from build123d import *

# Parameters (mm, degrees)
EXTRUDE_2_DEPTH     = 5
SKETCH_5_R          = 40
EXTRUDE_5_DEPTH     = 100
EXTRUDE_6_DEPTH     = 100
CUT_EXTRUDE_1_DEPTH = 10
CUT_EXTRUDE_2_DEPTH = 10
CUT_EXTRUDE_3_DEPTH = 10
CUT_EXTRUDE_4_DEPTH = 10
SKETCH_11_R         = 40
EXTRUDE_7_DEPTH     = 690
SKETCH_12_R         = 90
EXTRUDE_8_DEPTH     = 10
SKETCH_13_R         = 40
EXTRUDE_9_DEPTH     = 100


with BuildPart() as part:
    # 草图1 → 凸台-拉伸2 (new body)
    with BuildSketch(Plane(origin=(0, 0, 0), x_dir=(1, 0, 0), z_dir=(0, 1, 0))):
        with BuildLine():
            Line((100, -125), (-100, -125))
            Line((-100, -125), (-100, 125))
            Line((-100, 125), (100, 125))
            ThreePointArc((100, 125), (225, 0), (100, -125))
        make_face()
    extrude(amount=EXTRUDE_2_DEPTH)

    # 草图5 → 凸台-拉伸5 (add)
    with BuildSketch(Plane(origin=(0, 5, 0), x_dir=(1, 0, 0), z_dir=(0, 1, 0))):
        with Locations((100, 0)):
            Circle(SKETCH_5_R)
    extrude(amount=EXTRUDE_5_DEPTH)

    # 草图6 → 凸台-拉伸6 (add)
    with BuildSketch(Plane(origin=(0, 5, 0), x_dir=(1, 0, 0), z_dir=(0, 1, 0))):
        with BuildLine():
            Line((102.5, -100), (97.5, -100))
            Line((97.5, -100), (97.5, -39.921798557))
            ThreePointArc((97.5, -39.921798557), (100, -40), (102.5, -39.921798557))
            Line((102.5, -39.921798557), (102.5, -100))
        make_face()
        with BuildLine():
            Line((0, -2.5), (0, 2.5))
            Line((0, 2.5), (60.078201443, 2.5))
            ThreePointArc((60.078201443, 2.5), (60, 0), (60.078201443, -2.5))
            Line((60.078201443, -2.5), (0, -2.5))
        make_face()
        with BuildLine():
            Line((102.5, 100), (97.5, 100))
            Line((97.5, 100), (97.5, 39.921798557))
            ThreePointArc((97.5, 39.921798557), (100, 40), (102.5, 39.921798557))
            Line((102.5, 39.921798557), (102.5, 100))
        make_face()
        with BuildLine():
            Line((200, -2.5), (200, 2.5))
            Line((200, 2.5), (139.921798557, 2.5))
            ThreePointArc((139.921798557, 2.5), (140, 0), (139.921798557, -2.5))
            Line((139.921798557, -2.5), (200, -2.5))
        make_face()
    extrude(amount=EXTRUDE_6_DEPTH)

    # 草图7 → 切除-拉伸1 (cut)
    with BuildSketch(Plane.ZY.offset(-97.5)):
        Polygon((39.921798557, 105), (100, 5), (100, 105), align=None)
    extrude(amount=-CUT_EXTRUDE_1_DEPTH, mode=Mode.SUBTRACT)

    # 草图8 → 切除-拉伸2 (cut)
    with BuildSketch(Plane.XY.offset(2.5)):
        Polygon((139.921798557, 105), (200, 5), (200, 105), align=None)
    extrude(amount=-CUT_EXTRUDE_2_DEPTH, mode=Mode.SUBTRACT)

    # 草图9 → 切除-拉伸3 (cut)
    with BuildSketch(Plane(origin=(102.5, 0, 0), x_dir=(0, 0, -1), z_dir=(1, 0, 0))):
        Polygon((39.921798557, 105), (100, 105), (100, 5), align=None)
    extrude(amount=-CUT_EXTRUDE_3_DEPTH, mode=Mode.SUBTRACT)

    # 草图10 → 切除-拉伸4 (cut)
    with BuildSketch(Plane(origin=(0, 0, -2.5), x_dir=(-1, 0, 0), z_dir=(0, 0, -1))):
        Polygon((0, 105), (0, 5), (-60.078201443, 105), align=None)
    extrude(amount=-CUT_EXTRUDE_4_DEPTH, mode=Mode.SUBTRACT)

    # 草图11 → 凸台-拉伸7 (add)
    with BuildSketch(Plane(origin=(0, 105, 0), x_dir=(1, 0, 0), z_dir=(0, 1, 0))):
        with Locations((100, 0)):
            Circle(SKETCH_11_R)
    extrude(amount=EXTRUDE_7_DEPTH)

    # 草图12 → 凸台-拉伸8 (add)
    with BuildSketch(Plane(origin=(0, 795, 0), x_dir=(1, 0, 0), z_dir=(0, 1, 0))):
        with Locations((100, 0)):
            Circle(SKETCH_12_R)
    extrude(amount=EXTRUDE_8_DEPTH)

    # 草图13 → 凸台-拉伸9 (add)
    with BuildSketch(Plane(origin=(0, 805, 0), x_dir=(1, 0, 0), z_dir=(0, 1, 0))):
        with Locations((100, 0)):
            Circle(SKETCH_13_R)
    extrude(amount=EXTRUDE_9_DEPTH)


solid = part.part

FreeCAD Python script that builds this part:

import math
import FreeCAD as App
import Part
import Sketcher
Q = App.Units.Quantity

doc = App.newDocument("Part")
params = doc.addObject("Spreadsheet::Sheet", "Params")
for row, (alias, value) in enumerate([
    ("sketch1_radius", "125 mm"),
    ("sketch1_width", "200 mm"),
    ("pad1_length", "5 mm"),
    ("sketch2_diameter", "80 mm"),
    ("pad2_length", "100 mm"),
    ("sketch3_radius", "40 mm"),
    ("sketch3_width", "5 mm"),
    ("pad3_length", "100 mm"),
    ("sketch4_width", "100 mm"),
    ("pocket1_length", "10 mm"),
    ("sketch5_height", "100 mm"),
    ("pocket2_length", "10 mm"),
    ("sketch6_width", "100 mm"),
    ("pocket3_length", "10 mm"),
    ("sketch7_height", "100 mm"),
    ("pocket4_length", "10 mm"),
    ("sketch8_diameter", "80 mm"),
    ("pad4_length", "690 mm"),
    ("sketch9_diameter", "180 mm"),
    ("pad5_length", "10 mm"),
    ("sketch10_diameter", "80 mm"),
    ("pad6_length", "100 mm"),
], start=1):
    params.set(f"A{row}", alias)
    params.set(f"B{row}", "=" + value)
    params.setAlias(f"B{row}", alias)

body = doc.addObject("PartDesign::Body", "Body")

sketch1 = body.newObject("Sketcher::SketchObject", "Sketch")
sketch1.AttachmentSupport = (doc.getObject("XZ_Plane"), [""])
sketch1.MapMode = "FlatFace"
sketch1.addGeometry([
    Part.LineSegment(App.Vector(-100, 125, 0), App.Vector(100, 125, 0)),
    Part.ArcOfCircle(Part.Circle(App.Vector(100, 0, 0), App.Vector(0, 0, 1), 125), math.radians(-90), math.radians(90)),
    Part.LineSegment(App.Vector(100, -125, 0), App.Vector(-100, -125, 0)),
    Part.LineSegment(App.Vector(-100, -125, 0), App.Vector(-100, 125, 0)),
], False)
sketch1.addConstraint([
    Sketcher.Constraint("Tangent", 0, 2, 1, 2),
    Sketcher.Constraint("Tangent", 1, 1, 2, 1),
    Sketcher.Constraint("Coincident", 2, 2, 3, 1),
    Sketcher.Constraint("Coincident", 3, 2, 0, 1),
    Sketcher.Constraint("Horizontal", 0),
    Sketcher.Constraint("Horizontal", 2),
    Sketcher.Constraint("Vertical", 3),
    Sketcher.Constraint("Symmetric", 0, 2, 2, 2, -1, 1),
    Sketcher.Constraint("Radius", 1, Q("125 mm")),
    Sketcher.Constraint("DistanceX", 0, 1, 0, 2, Q("200 mm")),
])
sketch1.setExpression("Constraints[8]", "Params.sketch1_radius")
sketch1.setExpression("Constraints[9]", "Params.sketch1_width")
pad1 = body.newObject("PartDesign::Pad", "Pad")
pad1.Profile = sketch1
pad1.setExpression("Length", "Params.pad1_length")
pad1.Reversed = True

sketch2 = body.newObject("Sketcher::SketchObject", "Sketch001")
sketch2.AttachmentSupport = (doc.getObject("XZ_Plane"), [""])
sketch2.MapMode = "FlatFace"
sketch2.AttachmentOffset = App.Placement(App.Vector(0, 0, -5), App.Rotation())
sketch2.addGeometry(Part.Circle(App.Vector(100, 0, 0), App.Vector(0, 0, 1), 40), False)
sketch2.addConstraint([
    Sketcher.Constraint("PointOnObject", 0, 3, -1),
    Sketcher.Constraint("Diameter", 0, Q("80 mm")),
    Sketcher.Constraint("DistanceX", -1, 1, 0, 3, Q("100 mm")),
])
sketch2.setExpression("Constraints[1]", "Params.sketch2_diameter")
pad2 = body.newObject("PartDesign::Pad", "Pad001")
pad2.Profile = sketch2
pad2.setExpression("Length", "Params.pad2_length")
pad2.Reversed = True

sketch3 = body.newObject("Sketcher::SketchObject", "Sketch002")
sketch3.AttachmentSupport = (doc.getObject("XZ_Plane"), [""])
sketch3.MapMode = "FlatFace"
sketch3.AttachmentOffset = App.Placement(App.Vector(0, 0, -5), App.Rotation())
sketch3.addGeometry([
    Part.LineSegment(App.Vector(98, 100, 0), App.Vector(102, 100, 0)),
    Part.LineSegment(App.Vector(102, 100, 0), App.Vector(102, 40, 0)),
    Part.ArcOfCircle(Part.Circle(App.Vector(100, 0, 0), App.Vector(0, 0, 1), 40), math.radians(86.42), math.radians(93.58)),
    Part.LineSegment(App.Vector(98, 40, 0), App.Vector(98, 100, 0)),
    Part.LineSegment(App.Vector(0, -2, 0), App.Vector(0, 2, 0)),
    Part.LineSegment(App.Vector(0, 2, 0), App.Vector(60, 2, 0)),
    Part.ArcOfCircle(Part.Circle(App.Vector(100, 0, 0), App.Vector(0, 0, 1), 40), math.radians(176.42), math.radians(183.58)),
    Part.LineSegment(App.Vector(60, -2, 0), App.Vector(0, -2, 0)),
    Part.LineSegment(App.Vector(102, -100, 0), App.Vector(98, -100, 0)),
    Part.LineSegment(App.Vector(98, -100, 0), App.Vector(98, -40, 0)),
    Part.ArcOfCircle(Part.Circle(App.Vector(100, 0, 0), App.Vector(0, 0, 1), 40), math.radians(-93.58), math.radians(-86.42)),
    Part.LineSegment(App.Vector(102, -40, 0), App.Vector(102, -100, 0)),
    Part.LineSegment(App.Vector(200, 2, 0), App.Vector(200, -2, 0)),
    Part.LineSegment(App.Vector(200, -2, 0), App.Vector(140, -2, 0)),
    Part.ArcOfCircle(Part.Circle(App.Vector(100, 0, 0), App.Vector(0, 0, 1), 40), math.radians(-3.58), math.radians(3.58)),
    Part.LineSegment(App.Vector(140, 2, 0), App.Vector(200, 2, 0)),
], False)
sketch3.addConstraint([
    Sketcher.Constraint("Coincident", 0, 2, 1, 1),
    Sketcher.Constraint("Coincident", 1, 2, 2, 1),
    Sketcher.Constraint("Coincident", 2, 2, 3, 1),
    Sketcher.Constraint("Coincident", 3, 2, 0, 1),
    Sketcher.Constraint("Coincident", 4, 2, 5, 1),
    Sketcher.Constraint("Coincident", 5, 2, 6, 1),
    Sketcher.Constraint("Coincident", 6, 2, 7, 1),
    Sketcher.Constraint("Coincident", 7, 2, 4, 1),
    Sketcher.Constraint("Coincident", 8, 2, 9, 1),
    Sketcher.Constraint("Coincident", 9, 2, 10, 1),
    Sketcher.Constraint("Coincident", 10, 2, 11, 1),
    Sketcher.Constraint("Coincident", 11, 2, 8, 1),
    Sketcher.Constraint("Coincident", 12, 2, 13, 1),
    Sketcher.Constraint("Coincident", 13, 2, 14, 1),
    Sketcher.Constraint("Coincident", 14, 2, 15, 1),
    Sketcher.Constraint("Coincident", 15, 2, 12, 1),
    Sketcher.Constraint("Horizontal", 0),
    Sketcher.Constraint("Vertical", 1),
    Sketcher.Constraint("Vertical", 3),
    Sketcher.Constraint("Vertical", 4),
    Sketcher.Constraint("Horizontal", 5),
    Sketcher.Constraint("Horizontal", 7),
    Sketcher.Constraint("Horizontal", 8),
    Sketcher.Constraint("Vertical", 9),
    Sketcher.Constraint("Vertical", 11),
    Sketcher.Constraint("Vertical", 12),
    Sketcher.Constraint("Horizontal", 13),
    Sketcher.Constraint("Horizontal", 15),
    Sketcher.Constraint("Coincident", 6, 3, 2, 3),
    Sketcher.Constraint("Coincident", 10, 3, 2, 3),
    Sketcher.Constraint("Coincident", 14, 3, 2, 3),
    Sketcher.Constraint("Equal", 2, 6),
    Sketcher.Constraint("Equal", 6, 10),
    Sketcher.Constraint("Equal", 10, 14),
    Sketcher.Constraint("Symmetric", 4, 2, 7, 2, -1, 1),
    Sketcher.Constraint("Symmetric", 3, 2, 8, 2, -1),
    Sketcher.Constraint("Symmetric", 1, 2, 10, 2, -1),
    Sketcher.Constraint("Horizontal", 1, 2, 2, 2),
    Sketcher.Constraint("Horizontal", 7, 2, 12, 2),
    Sketcher.Constraint("Horizontal", 5, 2, 14, 2),
    Sketcher.Constraint("Equal", 7, 13),
    Sketcher.Constraint("Equal", 15, 1),
    Sketcher.Constraint("Equal", 8, 4),
    Sketcher.Constraint("Radius", 2, Q("40 mm")),
    Sketcher.Constraint("DistanceX", 0, 1, 0, 2, Q("5 mm")),
    Sketcher.Constraint("DistanceX", -1, 1, 2, 3, Q("100 mm")),
])
sketch3.setExpression("Constraints[43]", "Params.sketch3_radius")
sketch3.setExpression("Constraints[44]", "Params.sketch3_width")
pad3 = body.newObject("PartDesign::Pad", "Pad002")
pad3.Profile = sketch3
pad3.setExpression("Length", "Params.pad3_length")
pad3.Reversed = True

sketch4 = body.newObject("Sketcher::SketchObject", "Sketch003")
sketch4.AttachmentSupport = (doc.getObject("YZ_Plane"), [""])
sketch4.MapMode = "FlatFace"
sketch4.AttachmentOffset = App.Placement(App.Vector(0, 0, 97.5), App.Rotation())
sketch4.addGeometry([
    Part.LineSegment(App.Vector(105, 40, 0), App.Vector(5, 100, 0)),
    Part.LineSegment(App.Vector(5, 100, 0), App.Vector(105, 100, 0)),
    Part.LineSegment(App.Vector(105, 100, 0), App.Vector(105, 40, 0)),
], False)
sketch4.addConstraint([
    Sketcher.Constraint("Coincident", 0, 2, 1, 1),
    Sketcher.Constraint("Coincident", 1, 2, 2, 1),
    Sketcher.Constraint("Coincident", 2, 2, 0, 1),
    Sketcher.Constraint("Horizontal", 1),
    Sketcher.Constraint("Vertical", 2),
    Sketcher.Constraint("DistanceX", 1, 1, 1, 2, Q("100 mm")),
    Sketcher.Constraint("DistanceX", -1, 1, 0, 2, Q("5 mm")),
    Sketcher.Constraint("DistanceY", -1, 1, 0, 2, Q("100 mm")),
    Sketcher.Constraint("DistanceY", 2, 2, 2, 1, Q("60.078201 mm")),
])
sketch4.setExpression("Constraints[5]", "Params.sketch4_width")
pocket1 = body.newObject("PartDesign::Pocket", "Pocket")
pocket1.Profile = sketch4
pocket1.setExpression("Length", "Params.pocket1_length")
pocket1.Reversed = True

sketch5 = body.newObject("Sketcher::SketchObject", "Sketch004")
sketch5.AttachmentSupport = (doc.getObject("XY_Plane"), [""])
sketch5.MapMode = "FlatFace"
sketch5.AttachmentOffset = App.Placement(App.Vector(0, 0, 2.5), App.Rotation())
sketch5.addGeometry([
    Part.LineSegment(App.Vector(140, 105, 0), App.Vector(200, 5, 0)),
    Part.LineSegment(App.Vector(200, 5, 0), App.Vector(200, 105, 0)),
    Part.LineSegment(App.Vector(200, 105, 0), App.Vector(140, 105, 0)),
], False)
sketch5.addConstraint([
    Sketcher.Constraint("Coincident", 0, 2, 1, 1),
    Sketcher.Constraint("Coincident", 1, 2, 2, 1),
    Sketcher.Constraint("Coincident", 2, 2, 0, 1),
    Sketcher.Constraint("Vertical", 1),
    Sketcher.Constraint("Horizontal", 2),
    Sketcher.Constraint("DistanceY", 1, 1, 1, 2, Q("100 mm")),
    Sketcher.Constraint("DistanceX", -1, 1, 0, 2, Q("200 mm")),
    Sketcher.Constraint("DistanceY", -1, 1, 0, 2, Q("5 mm")),
    Sketcher.Constraint("DistanceX", 2, 2, 2, 1, Q("60.078201 mm")),
])
sketch5.setExpression("Constraints[5]", "Params.sketch5_height")
pocket2 = body.newObject("PartDesign::Pocket", "Pocket001")
pocket2.Profile = sketch5
pocket2.setExpression("Length", "Params.pocket2_length")

sketch6 = body.newObject("Sketcher::SketchObject", "Sketch005")
sketch6.AttachmentSupport = (doc.getObject("YZ_Plane"), [""])
sketch6.MapMode = "FlatFace"
sketch6.AttachmentOffset = App.Placement(App.Vector(0, 0, 102.5), App.Rotation())
sketch6.addGeometry([
    Part.LineSegment(App.Vector(105, -100, 0), App.Vector(105, -40, 0)),
    Part.LineSegment(App.Vector(105, -40, 0), App.Vector(5, -100, 0)),
    Part.LineSegment(App.Vector(5, -100, 0), App.Vector(105, -100, 0)),
], False)
sketch6.addConstraint([
    Sketcher.Constraint("Coincident", 0, 2, 1, 1),
    Sketcher.Constraint("Coincident", 1, 2, 2, 1),
    Sketcher.Constraint("Coincident", 2, 2, 0, 1),
    Sketcher.Constraint("Vertical", 0),
    Sketcher.Constraint("Horizontal", 2),
    Sketcher.Constraint("DistanceX", 2, 1, 2, 2, Q("100 mm")),
    Sketcher.Constraint("DistanceX", -1, 1, 0, 2, Q("105 mm")),
    Sketcher.Constraint("DistanceY", 1, 2, -1, 1, Q("100 mm")),
    Sketcher.Constraint("DistanceY", 0, 1, 0, 2, Q("60.078201 mm")),
])
sketch6.setExpression("Constraints[5]", "Params.sketch6_width")
pocket3 = body.newObject("PartDesign::Pocket", "Pocket002")
pocket3.Profile = sketch6
pocket3.setExpression("Length", "Params.pocket3_length")

sketch7 = body.newObject("Sketcher::SketchObject", "Sketch006")
sketch7.AttachmentSupport = (doc.getObject("XY_Plane"), [""])
sketch7.MapMode = "FlatFace"
sketch7.AttachmentOffset = App.Placement(App.Vector(0, 0, -2.5), App.Rotation())
sketch7.addGeometry([
    Part.LineSegment(App.Vector(0, 5, 0), App.Vector(0, 105, 0)),
    Part.LineSegment(App.Vector(0, 105, 0), App.Vector(60, 105, 0)),
    Part.LineSegment(App.Vector(60, 105, 0), App.Vector(0, 5, 0)),
], False)
sketch7.addConstraint([
    Sketcher.Constraint("Coincident", 0, 2, 1, 1),
    Sketcher.Constraint("Coincident", 1, 2, 2, 1),
    Sketcher.Constraint("Coincident", 2, 2, 0, 1),
    Sketcher.Constraint("Vertical", 0),
    Sketcher.Constraint("Horizontal", 1),
    Sketcher.Constraint("PointOnObject", 0, 2, -2),
    Sketcher.Constraint("DistanceY", 0, 1, 0, 2, Q("100 mm")),
    Sketcher.Constraint("DistanceY", -1, 1, 0, 2, Q("105 mm")),
    Sketcher.Constraint("DistanceX", 1, 1, 1, 2, Q("60.078201 mm")),
])
sketch7.setExpression("Constraints[6]", "Params.sketch7_height")
pocket4 = body.newObject("PartDesign::Pocket", "Pocket003")
pocket4.Profile = sketch7
pocket4.setExpression("Length", "Params.pocket4_length")
pocket4.Reversed = True

sketch8 = body.newObject("Sketcher::SketchObject", "Sketch007")
sketch8.AttachmentSupport = (doc.getObject("XZ_Plane"), [""])
sketch8.MapMode = "FlatFace"
sketch8.AttachmentOffset = App.Placement(App.Vector(0, 0, -105), App.Rotation())
sketch8.addGeometry(Part.Circle(App.Vector(100, 0, 0), App.Vector(0, 0, 1), 40), False)
sketch8.addConstraint([
    Sketcher.Constraint("PointOnObject", 0, 3, -1),
    Sketcher.Constraint("Diameter", 0, Q("80 mm")),
    Sketcher.Constraint("DistanceX", -1, 1, 0, 3, Q("100 mm")),
])
sketch8.setExpression("Constraints[1]", "Params.sketch8_diameter")
pad4 = body.newObject("PartDesign::Pad", "Pad003")
pad4.Profile = sketch8
pad4.setExpression("Length", "Params.pad4_length")
pad4.Reversed = True

sketch9 = body.newObject("Sketcher::SketchObject", "Sketch008")
sketch9.AttachmentSupport = (doc.getObject("XZ_Plane"), [""])
sketch9.MapMode = "FlatFace"
sketch9.AttachmentOffset = App.Placement(App.Vector(0, 0, -795), App.Rotation())
sketch9.addGeometry(Part.Circle(App.Vector(100, 0, 0), App.Vector(0, 0, 1), 90), False)
sketch9.addConstraint([
    Sketcher.Constraint("PointOnObject", 0, 3, -1),
    Sketcher.Constraint("Diameter", 0, Q("180 mm")),
    Sketcher.Constraint("DistanceX", -1, 1, 0, 3, Q("100 mm")),
])
sketch9.setExpression("Constraints[1]", "Params.sketch9_diameter")
pad5 = body.newObject("PartDesign::Pad", "Pad004")
pad5.Profile = sketch9
pad5.setExpression("Length", "Params.pad5_length")
pad5.Reversed = True

sketch10 = body.newObject("Sketcher::SketchObject", "Sketch009")
sketch10.AttachmentSupport = (doc.getObject("XZ_Plane"), [""])
sketch10.MapMode = "FlatFace"
sketch10.AttachmentOffset = App.Placement(App.Vector(0, 0, -805), App.Rotation())
sketch10.addGeometry(Part.Circle(App.Vector(100, 0, 0), App.Vector(0, 0, 1), 40), False)
sketch10.addConstraint([
    Sketcher.Constraint("PointOnObject", 0, 3, -1),
    Sketcher.Constraint("Diameter", 0, Q("80 mm")),
    Sketcher.Constraint("DistanceX", -1, 1, 0, 3, Q("100 mm")),
])
sketch10.setExpression("Constraints[1]", "Params.sketch10_diameter")
pad6 = body.newObject("PartDesign::Pad", "Pad005")
pad6.Profile = sketch10
pad6.setExpression("Length", "Params.pad6_length")
pad6.Reversed = True

doc.recompute()
